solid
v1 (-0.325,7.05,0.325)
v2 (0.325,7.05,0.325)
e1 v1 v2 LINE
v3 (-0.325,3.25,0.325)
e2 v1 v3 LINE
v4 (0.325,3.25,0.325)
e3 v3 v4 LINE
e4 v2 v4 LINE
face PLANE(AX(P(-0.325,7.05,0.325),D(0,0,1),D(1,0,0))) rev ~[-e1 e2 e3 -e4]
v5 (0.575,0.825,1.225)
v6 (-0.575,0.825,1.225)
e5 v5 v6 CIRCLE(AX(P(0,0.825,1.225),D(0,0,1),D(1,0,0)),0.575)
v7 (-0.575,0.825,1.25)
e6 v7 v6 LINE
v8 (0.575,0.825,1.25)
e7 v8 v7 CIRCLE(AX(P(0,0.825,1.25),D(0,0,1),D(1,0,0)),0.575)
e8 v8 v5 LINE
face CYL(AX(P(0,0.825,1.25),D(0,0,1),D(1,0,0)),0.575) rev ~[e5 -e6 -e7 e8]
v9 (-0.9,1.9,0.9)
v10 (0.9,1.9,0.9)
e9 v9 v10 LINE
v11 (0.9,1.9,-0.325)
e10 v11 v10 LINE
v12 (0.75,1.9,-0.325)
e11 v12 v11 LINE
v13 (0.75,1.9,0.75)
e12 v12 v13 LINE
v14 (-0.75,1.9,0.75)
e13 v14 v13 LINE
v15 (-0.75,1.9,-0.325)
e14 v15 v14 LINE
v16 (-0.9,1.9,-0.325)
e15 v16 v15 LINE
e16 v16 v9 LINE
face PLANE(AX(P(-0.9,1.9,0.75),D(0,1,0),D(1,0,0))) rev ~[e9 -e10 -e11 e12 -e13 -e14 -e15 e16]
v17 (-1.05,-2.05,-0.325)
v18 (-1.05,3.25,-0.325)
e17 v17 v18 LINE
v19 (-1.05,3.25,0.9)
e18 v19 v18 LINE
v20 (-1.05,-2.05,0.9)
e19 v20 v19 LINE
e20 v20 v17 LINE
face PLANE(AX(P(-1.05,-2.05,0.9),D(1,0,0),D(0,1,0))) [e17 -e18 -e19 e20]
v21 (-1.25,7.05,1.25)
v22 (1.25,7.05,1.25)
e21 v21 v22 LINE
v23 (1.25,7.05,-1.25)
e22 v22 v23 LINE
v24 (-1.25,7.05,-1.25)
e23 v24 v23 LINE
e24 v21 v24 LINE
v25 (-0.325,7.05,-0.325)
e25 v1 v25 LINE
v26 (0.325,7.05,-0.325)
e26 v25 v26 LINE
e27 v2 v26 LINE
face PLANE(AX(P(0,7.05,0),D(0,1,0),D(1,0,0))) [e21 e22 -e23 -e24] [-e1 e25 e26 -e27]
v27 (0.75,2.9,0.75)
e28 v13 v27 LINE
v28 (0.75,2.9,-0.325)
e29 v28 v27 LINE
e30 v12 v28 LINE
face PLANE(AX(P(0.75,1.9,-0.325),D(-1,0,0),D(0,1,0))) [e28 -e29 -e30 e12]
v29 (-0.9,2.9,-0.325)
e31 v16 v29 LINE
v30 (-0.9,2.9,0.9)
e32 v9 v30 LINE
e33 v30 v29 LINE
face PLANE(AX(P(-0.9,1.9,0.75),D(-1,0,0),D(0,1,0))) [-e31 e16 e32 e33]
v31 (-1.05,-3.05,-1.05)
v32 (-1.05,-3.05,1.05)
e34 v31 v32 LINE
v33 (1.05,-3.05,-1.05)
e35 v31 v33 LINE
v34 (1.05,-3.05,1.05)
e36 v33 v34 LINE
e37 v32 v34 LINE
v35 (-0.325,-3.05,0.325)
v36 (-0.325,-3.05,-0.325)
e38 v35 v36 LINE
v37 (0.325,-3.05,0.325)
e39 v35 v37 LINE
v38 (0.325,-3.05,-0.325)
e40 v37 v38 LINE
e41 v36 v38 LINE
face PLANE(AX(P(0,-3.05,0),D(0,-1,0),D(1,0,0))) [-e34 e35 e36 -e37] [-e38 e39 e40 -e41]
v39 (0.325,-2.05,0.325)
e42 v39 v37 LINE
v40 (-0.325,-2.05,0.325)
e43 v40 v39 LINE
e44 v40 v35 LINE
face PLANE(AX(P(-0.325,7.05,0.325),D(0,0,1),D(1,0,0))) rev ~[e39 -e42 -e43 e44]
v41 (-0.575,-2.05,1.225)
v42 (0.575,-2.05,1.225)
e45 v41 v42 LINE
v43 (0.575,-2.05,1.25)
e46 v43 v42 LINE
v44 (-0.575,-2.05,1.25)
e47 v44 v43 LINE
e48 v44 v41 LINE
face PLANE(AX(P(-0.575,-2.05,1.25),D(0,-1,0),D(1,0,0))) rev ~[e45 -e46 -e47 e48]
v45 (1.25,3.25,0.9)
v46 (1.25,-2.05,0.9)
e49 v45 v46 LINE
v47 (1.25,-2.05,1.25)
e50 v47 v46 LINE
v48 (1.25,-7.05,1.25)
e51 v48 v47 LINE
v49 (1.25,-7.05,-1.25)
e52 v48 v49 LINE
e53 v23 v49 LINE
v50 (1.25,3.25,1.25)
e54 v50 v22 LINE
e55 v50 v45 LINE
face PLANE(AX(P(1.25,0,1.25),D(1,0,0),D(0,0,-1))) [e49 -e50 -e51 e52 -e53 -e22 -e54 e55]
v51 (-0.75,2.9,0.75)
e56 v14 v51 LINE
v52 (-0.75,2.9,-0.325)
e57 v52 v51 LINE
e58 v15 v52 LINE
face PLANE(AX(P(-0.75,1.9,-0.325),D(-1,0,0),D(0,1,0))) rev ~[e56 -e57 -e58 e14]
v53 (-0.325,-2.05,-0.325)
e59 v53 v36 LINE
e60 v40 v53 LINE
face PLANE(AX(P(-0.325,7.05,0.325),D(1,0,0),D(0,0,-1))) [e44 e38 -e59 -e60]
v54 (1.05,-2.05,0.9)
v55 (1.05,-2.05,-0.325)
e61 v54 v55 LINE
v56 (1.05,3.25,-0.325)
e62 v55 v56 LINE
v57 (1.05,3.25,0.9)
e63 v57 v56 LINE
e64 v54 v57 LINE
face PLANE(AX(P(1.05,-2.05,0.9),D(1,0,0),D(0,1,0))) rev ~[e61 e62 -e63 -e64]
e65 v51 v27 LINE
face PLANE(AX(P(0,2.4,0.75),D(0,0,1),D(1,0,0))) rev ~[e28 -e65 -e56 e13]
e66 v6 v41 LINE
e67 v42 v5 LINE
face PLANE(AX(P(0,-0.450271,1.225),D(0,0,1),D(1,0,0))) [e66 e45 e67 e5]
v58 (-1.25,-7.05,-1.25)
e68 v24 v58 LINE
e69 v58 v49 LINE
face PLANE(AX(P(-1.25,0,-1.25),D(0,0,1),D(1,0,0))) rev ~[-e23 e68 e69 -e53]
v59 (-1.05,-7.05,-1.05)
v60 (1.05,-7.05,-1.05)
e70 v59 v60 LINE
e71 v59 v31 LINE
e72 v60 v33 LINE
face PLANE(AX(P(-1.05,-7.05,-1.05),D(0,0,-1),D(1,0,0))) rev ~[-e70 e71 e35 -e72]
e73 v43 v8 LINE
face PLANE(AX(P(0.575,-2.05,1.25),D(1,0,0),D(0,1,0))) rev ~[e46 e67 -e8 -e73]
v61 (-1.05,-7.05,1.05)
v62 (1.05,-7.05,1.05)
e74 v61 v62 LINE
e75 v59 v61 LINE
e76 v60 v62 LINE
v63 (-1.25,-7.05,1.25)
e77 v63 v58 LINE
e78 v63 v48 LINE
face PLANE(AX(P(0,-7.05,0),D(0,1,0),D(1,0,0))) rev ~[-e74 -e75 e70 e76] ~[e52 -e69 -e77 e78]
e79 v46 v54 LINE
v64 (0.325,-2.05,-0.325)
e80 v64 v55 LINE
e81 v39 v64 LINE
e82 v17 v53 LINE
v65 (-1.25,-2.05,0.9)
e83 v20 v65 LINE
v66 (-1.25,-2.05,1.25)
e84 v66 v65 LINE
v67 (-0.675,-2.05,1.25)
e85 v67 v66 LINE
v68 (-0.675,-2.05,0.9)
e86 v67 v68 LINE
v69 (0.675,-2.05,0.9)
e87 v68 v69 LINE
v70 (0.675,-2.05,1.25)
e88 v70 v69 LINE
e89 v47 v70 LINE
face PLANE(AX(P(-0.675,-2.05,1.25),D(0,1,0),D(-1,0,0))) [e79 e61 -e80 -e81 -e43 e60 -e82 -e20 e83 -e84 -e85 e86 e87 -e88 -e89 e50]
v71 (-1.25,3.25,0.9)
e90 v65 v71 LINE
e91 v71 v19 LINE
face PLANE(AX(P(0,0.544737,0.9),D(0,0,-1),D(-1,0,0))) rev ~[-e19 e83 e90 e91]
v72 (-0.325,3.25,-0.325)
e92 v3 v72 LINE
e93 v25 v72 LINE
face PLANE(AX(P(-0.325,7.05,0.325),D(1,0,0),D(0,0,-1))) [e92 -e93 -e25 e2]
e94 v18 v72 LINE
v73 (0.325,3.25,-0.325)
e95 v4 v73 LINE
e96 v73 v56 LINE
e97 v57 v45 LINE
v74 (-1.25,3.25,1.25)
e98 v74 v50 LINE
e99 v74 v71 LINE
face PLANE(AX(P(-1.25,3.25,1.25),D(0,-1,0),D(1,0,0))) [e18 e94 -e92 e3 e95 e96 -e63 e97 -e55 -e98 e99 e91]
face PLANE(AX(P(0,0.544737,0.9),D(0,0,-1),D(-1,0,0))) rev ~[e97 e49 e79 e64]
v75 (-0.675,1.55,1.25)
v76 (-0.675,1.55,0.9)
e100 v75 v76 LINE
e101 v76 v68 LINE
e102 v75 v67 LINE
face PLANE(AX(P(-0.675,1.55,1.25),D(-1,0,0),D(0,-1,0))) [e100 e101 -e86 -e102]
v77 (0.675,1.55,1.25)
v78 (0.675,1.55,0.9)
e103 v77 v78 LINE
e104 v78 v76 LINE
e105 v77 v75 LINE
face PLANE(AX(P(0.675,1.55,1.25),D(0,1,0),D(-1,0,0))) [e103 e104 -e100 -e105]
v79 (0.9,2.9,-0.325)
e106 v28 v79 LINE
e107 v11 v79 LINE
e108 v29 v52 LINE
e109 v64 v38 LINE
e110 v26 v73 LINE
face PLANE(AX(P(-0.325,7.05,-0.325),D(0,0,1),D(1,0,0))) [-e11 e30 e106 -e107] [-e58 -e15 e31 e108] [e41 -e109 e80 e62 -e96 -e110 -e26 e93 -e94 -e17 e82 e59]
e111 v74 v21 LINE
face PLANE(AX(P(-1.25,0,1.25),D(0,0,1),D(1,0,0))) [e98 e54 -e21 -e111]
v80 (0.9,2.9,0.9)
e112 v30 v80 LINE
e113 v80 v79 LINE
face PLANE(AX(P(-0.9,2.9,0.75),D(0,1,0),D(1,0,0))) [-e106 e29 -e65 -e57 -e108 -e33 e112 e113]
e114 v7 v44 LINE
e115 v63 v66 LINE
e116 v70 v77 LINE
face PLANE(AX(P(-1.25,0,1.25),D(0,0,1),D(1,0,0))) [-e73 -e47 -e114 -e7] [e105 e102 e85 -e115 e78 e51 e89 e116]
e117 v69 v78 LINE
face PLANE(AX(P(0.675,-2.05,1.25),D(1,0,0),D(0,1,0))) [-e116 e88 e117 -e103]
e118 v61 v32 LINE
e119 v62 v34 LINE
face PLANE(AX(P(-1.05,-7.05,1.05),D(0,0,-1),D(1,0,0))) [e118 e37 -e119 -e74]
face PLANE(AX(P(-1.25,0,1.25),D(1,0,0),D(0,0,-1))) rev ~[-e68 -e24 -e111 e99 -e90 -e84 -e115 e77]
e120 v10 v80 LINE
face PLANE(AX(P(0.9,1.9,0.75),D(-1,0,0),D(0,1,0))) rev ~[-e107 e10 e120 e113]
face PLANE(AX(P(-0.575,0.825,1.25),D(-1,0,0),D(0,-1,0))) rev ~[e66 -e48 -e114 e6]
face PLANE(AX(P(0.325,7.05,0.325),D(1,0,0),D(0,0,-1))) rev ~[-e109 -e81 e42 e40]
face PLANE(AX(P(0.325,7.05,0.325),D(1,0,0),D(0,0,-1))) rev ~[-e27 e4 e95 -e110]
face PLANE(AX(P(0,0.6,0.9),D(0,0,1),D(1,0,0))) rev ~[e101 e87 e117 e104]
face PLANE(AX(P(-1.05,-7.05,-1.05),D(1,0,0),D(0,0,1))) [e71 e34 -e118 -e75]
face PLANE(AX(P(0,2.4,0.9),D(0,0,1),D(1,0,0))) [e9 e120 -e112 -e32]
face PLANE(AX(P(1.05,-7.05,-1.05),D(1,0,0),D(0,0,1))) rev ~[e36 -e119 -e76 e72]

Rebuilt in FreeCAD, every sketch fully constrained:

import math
import FreeCAD as App
import Part
import Sketcher
from FreeCAD import Vector


def add_polygon(sketch, points):
    """Adds a closed chain of lines whose ends are joined by coincident constraints."""
    first, n = sketch.GeometryCount, len(points)
    for a, b in zip(points, points[1:] + points[:1]):
        sketch.addGeometry(Part.LineSegment(App.Vector(*a, 0), App.Vector(*b, 0)), False)
    for i in range(n):
        sketch.addConstraint(Sketcher.Constraint("Coincident", first + i, 2, first + (i + 1) % n, 1))

doc = App.newDocument("Part")
body = doc.addObject("PartDesign::Body", "Body")

sketch1 = body.newObject("Sketcher::SketchObject", "Sketch")
sketch1.AttachmentSupport = (doc.getObject("XZ_Plane"), [""])
sketch1.MapMode = "FlatFace"
add_polygon(sketch1, [(-1.2, -1.2), (-1.2, 1.2), (1.2, 1.2), (1.2, -1.2)])
sketch1.addConstraint([
    Sketcher.Constraint("Vertical", 0),
    Sketcher.Constraint("Horizontal", 1),
    Sketcher.Constraint("Vertical", 2),
    Sketcher.Constraint("Horizontal", 3),
    Sketcher.Constraint("Symmetric", 0, 2, 2, 2, -1, 1),
    Sketcher.Constraint("Equal", 3, 0),
    Sketcher.Constraint("DistanceX", 1, 1, 1, 2, 2.5),
])
pad1 = body.newObject("PartDesign::Pad", "Pad")
pad1.Profile = sketch1
pad1.Length = 14.1
pad1.Midplane = True

sketch2 = body.newObject("Sketcher::SketchObject", "Sketch001")
sketch2.AttachmentSupport = (doc.getObject("XZ_Plane"), [""])
sketch2.MapMode = "FlatFace"
sketch2.AttachmentOffset = App.Placement(Vector(0, 0, -7.05), App.Rotation())
add_polygon(sketch2, [(-0.3, -0.3), (-0.3, 0.3), (0.3, 0.3), (0.3, -0.3)])
sketch2.addConstraint([
    Sketcher.Constraint("Vertical", 0),
    Sketcher.Constraint("Horizontal", 1),
    Sketcher.Constraint("Vertical", 2),
    Sketcher.Constraint("Horizontal", 3),
    Sketcher.Constraint("Symmetric", 0, 2, 2, 2, -1, 1),
    Sketcher.Constraint("Equal", 3, 0),
    Sketcher.Constraint("DistanceX", 1, 1, 1, 2, 0.65),
])
pocket1 = body.newObject("PartDesign::Pocket", "Pocket")
pocket1.Profile = sketch2
pocket1.Type = "UpToFirst"
pocket1.Reversed = True

sketch3 = body.newObject("Sketcher::SketchObject", "Sketch002")
sketch3.AttachmentSupport = (doc.getObject("XY_Plane"), [""])
sketch3.MapMode = "FlatFace"
sketch3.AttachmentOffset = App.Placement(Vector(0, 0, 1.25), App.Rotation())
add_polygon(sketch3, [(1.2, 3.2), (-1.2, 3.2), (-1.2, -2), (-0.7, -2), (-0.7, 1.6), (0.7, 1.6), (0.7, -2), (1.2, -2)])
sketch3.addConstraint([
    Sketcher.Constraint("Horizontal", 0),
    Sketcher.Constraint("Vertical", 1),
    Sketcher.Constraint("Horizontal", 2),
    Sketcher.Constraint("Vertical", 3),
    Sketcher.Constraint("Horizontal", 4),
    Sketcher.Constraint("Vertical", 5),
    Sketcher.Constraint("Horizontal", 6),
    Sketcher.Constraint("Vertical", 7),
    Sketcher.Constraint("Symmetric", 2, 2, 5, 2, -2),
    Sketcher.Constraint("Equal", 2, 6),
    Sketcher.Constraint("DistanceX", 0, 2, 0, 1, 2.5),
    Sketcher.Constraint("DistanceY", 1, 2, 1, 1, 5.3),
    Sketcher.Constraint("DistanceY", 3, 1, 3, 2, 3.6),
    Sketcher.Constraint("DistanceX", 4, 1, 4, 2, 1.35),
    Sketcher.Constraint("DistanceY", -1, 1, 0, 2, 3.25),
])
pocket2 = body.newObject("PartDesign::Pocket", "Pocket001")
pocket2.Profile = sketch3
pocket2.Length = 0.35

sketch4 = body.newObject("Sketcher::SketchObject", "Sketch003")
sketch4.AttachmentSupport = (doc.getObject("XY_Plane"), [""])
sketch4.MapMode = "FlatFace"
sketch4.AttachmentOffset = App.Placement(Vector(0, 0, 0.9), App.Rotation())
add_polygon(sketch4, [(-1.1, 3.2), (-1.1, -2), (1.1, -2), (1.1, 3.2)])
sketch4.addConstraint([
    Sketcher.Constraint("Vertical", 0),
    Sketcher.Constraint("Horizontal", 1),
    Sketcher.Constraint("Vertical", 2),
    Sketcher.Constraint("Horizontal", 3),
    Sketcher.Constraint("DistanceX", 1, 1, 1, 2, 2.1),
    Sketcher.Constraint("DistanceY", 0, 2, 0, 1, 5.3),
    Sketcher.Constraint("DistanceX", 0, 2, -1, 1, 1.05),
    Sketcher.Constraint("DistanceY", 0, 2, -1, 1, 2.05),
])
pocket3 = body.newObject("PartDesign::Pocket", "Pocket002")
pocket3.Profile = sketch4
pocket3.Length = 1.225

sketch5 = body.newObject("Sketcher::SketchObject", "Sketch004")
sketch5.AttachmentSupport = (doc.getObject("XY_Plane"), [""])
sketch5.MapMode = "FlatFace"
sketch5.AttachmentOffset = App.Placement(Vector(0, 0, 1.25), App.Rotation())
sketch5.addGeometry([
    Part.LineSegment(Vector(-0.6, 0.8, 0), Vector(-0.6, -2, 0)),
    Part.LineSegment(Vector(-0.6, -2, 0), Vector(0.6, -2, 0)),
    Part.LineSegment(Vector(0.6, -2, 0), Vector(0.6, 0.8, 0)),
    Part.ArcOfCircle(Part.Circle(Vector(0, 0.8, 0), Vector(0, 0, 1), 0.6), math.radians(0), math.radians(180)),
], False)
sketch5.addConstraint([
    Sketcher.Constraint("Coincident", 0, 2, 1, 1),
    Sketcher.Constraint("Coincident", 1, 2, 2, 1),
    Sketcher.Constraint("Tangent", 2, 2, 3, 1),
    Sketcher.Constraint("Tangent", 3, 2, 0, 1),
    Sketcher.Constraint("Vertical", 0),
    Sketcher.Constraint("Horizontal", 1),
    Sketcher.Constraint("Vertical", 2),
    Sketcher.Constraint("PointOnObject", 3, 3, -2),
    Sketcher.Constraint("Radius", 3, 0.575),
    Sketcher.Constraint("DistanceY", 0, 2, 0, 1, 2.875),
    Sketcher.Constraint("DistanceY", 0, 2, -1, 1, 2.05),
])
pocket4 = body.newObject("PartDesign::Pocket", "Pocket003")
pocket4.Profile = sketch5
pocket4.Length = 0.025

sketch6 = body.newObject("Sketcher::SketchObject", "Sketch005")
sketch6.AttachmentSupport = (doc.getObject("XZ_Plane"), [""])
sketch6.MapMode = "FlatFace"
sketch6.AttachmentOffset = App.Placement(Vector(0, 0, 7.05), App.Rotation())
add_polygon(sketch6, [(-1.1, 1.1), (-1.1, -1.1), (1.1, -1.1), (1.1, 1.1)])
sketch6.addConstraint([
    Sketcher.Constraint("Vertical", 0),
    Sketcher.Constraint("Horizontal", 1),
    Sketcher.Constraint("Vertical", 2),
    Sketcher.Constraint("Horizontal", 3),
    Sketcher.Constraint("Symmetric", 0, 2, 2, 2, -1, 1),
    Sketcher.Constraint("Equal", 3, 0),
    Sketcher.Constraint("DistanceX", 1, 1, 1, 2, 2.1),
])
pocket5 = body.newObject("PartDesign::Pocket", "Pocket004")
pocket5.Profile = sketch6
pocket5.Length = 4

sketch7 = body.newObject("Sketcher::SketchObject", "Sketch006")
sketch7.AttachmentSupport = (doc.getObject("XY_Plane"), [""])
sketch7.MapMode = "FlatFace"
sketch7.AttachmentOffset = App.Placement(Vector(0, 0, -0.325), App.Rotation())
add_polygon(sketch7, [(-0.9, 2.9), (-0.9, 1.9), (-0.75, 1.9), (-0.75, 2.9)])
add_polygon(sketch7, [(0.75, 2.9), (0.75, 1.9), (0.9, 1.9), (0.9, 2.9)])
sketch7.addConstraint([
    Sketcher.Constraint("Vertical", 0),
    Sketcher.Constraint("Horizontal", 1),
    Sketcher.Constraint("Vertical", 2),
    Sketcher.Constraint("Horizontal", 3),
    Sketcher.Constraint("Vertical", 4),
    Sketcher.Constraint("Horizontal", 5),
    Sketcher.Constraint("Vertical", 6),
    Sketcher.Constraint("Horizontal", 7),
    Sketcher.Constraint("Symmetric", 1, 2, 4, 2, -2),
    Sketcher.Constraint("Symmetric", 3, 2, 6, 2, -2),
    Sketcher.Constraint("DistanceY", 0, 2, 0, 1, 1.0),
    Sketcher.Constraint("DistanceX", 1, 1, 1, 2, 0.15),
    Sketcher.Constraint("DistanceX", 0, 2, -1, 1, 0.9),
    Sketcher.Constraint("DistanceY", -1, 1, 0, 2, 1.9),
])
pad2 = body.newObject("PartDesign::Pad", "Pad001")
pad2.Profile = sketch7
pad2.Length = 1.075

sketch8 = body.newObject("Sketcher::SketchObject", "Sketch007")
sketch8.AttachmentSupport = (doc.getObject("XY_Plane"), [""])
sketch8.MapMode = "FlatFace"
sketch8.AttachmentOffset = App.Placement(Vector(0, 0, 0.75), App.Rotation())
add_polygon(sketch8, [(-0.9, 2.9), (-0.9, 1.9), (0.9, 1.9), (0.9, 2.9)])
sketch8.addConstraint([
    Sketcher.Constraint("Vertical", 0),
    Sketcher.Constraint("Horizontal", 1),
    Sketcher.Constraint("Vertical", 2),
    Sketcher.Constraint("Horizontal", 3),
    Sketcher.Constraint("DistanceY", 0, 2, 0, 1, 1.0),
    Sketcher.Constraint("DistanceX", 1, 1, 1, 2, 1.8),
    Sketcher.Constraint("DistanceX", 0, 2, -1, 1, 0.9),
    Sketcher.Constraint("DistanceY", -1, 1, 0, 2, 1.9),
])
pad3 = body.newObject("PartDesign::Pad", "Pad002")
pad3.Profile = sketch8
pad3.Length = 0.15

doc.recompute()
